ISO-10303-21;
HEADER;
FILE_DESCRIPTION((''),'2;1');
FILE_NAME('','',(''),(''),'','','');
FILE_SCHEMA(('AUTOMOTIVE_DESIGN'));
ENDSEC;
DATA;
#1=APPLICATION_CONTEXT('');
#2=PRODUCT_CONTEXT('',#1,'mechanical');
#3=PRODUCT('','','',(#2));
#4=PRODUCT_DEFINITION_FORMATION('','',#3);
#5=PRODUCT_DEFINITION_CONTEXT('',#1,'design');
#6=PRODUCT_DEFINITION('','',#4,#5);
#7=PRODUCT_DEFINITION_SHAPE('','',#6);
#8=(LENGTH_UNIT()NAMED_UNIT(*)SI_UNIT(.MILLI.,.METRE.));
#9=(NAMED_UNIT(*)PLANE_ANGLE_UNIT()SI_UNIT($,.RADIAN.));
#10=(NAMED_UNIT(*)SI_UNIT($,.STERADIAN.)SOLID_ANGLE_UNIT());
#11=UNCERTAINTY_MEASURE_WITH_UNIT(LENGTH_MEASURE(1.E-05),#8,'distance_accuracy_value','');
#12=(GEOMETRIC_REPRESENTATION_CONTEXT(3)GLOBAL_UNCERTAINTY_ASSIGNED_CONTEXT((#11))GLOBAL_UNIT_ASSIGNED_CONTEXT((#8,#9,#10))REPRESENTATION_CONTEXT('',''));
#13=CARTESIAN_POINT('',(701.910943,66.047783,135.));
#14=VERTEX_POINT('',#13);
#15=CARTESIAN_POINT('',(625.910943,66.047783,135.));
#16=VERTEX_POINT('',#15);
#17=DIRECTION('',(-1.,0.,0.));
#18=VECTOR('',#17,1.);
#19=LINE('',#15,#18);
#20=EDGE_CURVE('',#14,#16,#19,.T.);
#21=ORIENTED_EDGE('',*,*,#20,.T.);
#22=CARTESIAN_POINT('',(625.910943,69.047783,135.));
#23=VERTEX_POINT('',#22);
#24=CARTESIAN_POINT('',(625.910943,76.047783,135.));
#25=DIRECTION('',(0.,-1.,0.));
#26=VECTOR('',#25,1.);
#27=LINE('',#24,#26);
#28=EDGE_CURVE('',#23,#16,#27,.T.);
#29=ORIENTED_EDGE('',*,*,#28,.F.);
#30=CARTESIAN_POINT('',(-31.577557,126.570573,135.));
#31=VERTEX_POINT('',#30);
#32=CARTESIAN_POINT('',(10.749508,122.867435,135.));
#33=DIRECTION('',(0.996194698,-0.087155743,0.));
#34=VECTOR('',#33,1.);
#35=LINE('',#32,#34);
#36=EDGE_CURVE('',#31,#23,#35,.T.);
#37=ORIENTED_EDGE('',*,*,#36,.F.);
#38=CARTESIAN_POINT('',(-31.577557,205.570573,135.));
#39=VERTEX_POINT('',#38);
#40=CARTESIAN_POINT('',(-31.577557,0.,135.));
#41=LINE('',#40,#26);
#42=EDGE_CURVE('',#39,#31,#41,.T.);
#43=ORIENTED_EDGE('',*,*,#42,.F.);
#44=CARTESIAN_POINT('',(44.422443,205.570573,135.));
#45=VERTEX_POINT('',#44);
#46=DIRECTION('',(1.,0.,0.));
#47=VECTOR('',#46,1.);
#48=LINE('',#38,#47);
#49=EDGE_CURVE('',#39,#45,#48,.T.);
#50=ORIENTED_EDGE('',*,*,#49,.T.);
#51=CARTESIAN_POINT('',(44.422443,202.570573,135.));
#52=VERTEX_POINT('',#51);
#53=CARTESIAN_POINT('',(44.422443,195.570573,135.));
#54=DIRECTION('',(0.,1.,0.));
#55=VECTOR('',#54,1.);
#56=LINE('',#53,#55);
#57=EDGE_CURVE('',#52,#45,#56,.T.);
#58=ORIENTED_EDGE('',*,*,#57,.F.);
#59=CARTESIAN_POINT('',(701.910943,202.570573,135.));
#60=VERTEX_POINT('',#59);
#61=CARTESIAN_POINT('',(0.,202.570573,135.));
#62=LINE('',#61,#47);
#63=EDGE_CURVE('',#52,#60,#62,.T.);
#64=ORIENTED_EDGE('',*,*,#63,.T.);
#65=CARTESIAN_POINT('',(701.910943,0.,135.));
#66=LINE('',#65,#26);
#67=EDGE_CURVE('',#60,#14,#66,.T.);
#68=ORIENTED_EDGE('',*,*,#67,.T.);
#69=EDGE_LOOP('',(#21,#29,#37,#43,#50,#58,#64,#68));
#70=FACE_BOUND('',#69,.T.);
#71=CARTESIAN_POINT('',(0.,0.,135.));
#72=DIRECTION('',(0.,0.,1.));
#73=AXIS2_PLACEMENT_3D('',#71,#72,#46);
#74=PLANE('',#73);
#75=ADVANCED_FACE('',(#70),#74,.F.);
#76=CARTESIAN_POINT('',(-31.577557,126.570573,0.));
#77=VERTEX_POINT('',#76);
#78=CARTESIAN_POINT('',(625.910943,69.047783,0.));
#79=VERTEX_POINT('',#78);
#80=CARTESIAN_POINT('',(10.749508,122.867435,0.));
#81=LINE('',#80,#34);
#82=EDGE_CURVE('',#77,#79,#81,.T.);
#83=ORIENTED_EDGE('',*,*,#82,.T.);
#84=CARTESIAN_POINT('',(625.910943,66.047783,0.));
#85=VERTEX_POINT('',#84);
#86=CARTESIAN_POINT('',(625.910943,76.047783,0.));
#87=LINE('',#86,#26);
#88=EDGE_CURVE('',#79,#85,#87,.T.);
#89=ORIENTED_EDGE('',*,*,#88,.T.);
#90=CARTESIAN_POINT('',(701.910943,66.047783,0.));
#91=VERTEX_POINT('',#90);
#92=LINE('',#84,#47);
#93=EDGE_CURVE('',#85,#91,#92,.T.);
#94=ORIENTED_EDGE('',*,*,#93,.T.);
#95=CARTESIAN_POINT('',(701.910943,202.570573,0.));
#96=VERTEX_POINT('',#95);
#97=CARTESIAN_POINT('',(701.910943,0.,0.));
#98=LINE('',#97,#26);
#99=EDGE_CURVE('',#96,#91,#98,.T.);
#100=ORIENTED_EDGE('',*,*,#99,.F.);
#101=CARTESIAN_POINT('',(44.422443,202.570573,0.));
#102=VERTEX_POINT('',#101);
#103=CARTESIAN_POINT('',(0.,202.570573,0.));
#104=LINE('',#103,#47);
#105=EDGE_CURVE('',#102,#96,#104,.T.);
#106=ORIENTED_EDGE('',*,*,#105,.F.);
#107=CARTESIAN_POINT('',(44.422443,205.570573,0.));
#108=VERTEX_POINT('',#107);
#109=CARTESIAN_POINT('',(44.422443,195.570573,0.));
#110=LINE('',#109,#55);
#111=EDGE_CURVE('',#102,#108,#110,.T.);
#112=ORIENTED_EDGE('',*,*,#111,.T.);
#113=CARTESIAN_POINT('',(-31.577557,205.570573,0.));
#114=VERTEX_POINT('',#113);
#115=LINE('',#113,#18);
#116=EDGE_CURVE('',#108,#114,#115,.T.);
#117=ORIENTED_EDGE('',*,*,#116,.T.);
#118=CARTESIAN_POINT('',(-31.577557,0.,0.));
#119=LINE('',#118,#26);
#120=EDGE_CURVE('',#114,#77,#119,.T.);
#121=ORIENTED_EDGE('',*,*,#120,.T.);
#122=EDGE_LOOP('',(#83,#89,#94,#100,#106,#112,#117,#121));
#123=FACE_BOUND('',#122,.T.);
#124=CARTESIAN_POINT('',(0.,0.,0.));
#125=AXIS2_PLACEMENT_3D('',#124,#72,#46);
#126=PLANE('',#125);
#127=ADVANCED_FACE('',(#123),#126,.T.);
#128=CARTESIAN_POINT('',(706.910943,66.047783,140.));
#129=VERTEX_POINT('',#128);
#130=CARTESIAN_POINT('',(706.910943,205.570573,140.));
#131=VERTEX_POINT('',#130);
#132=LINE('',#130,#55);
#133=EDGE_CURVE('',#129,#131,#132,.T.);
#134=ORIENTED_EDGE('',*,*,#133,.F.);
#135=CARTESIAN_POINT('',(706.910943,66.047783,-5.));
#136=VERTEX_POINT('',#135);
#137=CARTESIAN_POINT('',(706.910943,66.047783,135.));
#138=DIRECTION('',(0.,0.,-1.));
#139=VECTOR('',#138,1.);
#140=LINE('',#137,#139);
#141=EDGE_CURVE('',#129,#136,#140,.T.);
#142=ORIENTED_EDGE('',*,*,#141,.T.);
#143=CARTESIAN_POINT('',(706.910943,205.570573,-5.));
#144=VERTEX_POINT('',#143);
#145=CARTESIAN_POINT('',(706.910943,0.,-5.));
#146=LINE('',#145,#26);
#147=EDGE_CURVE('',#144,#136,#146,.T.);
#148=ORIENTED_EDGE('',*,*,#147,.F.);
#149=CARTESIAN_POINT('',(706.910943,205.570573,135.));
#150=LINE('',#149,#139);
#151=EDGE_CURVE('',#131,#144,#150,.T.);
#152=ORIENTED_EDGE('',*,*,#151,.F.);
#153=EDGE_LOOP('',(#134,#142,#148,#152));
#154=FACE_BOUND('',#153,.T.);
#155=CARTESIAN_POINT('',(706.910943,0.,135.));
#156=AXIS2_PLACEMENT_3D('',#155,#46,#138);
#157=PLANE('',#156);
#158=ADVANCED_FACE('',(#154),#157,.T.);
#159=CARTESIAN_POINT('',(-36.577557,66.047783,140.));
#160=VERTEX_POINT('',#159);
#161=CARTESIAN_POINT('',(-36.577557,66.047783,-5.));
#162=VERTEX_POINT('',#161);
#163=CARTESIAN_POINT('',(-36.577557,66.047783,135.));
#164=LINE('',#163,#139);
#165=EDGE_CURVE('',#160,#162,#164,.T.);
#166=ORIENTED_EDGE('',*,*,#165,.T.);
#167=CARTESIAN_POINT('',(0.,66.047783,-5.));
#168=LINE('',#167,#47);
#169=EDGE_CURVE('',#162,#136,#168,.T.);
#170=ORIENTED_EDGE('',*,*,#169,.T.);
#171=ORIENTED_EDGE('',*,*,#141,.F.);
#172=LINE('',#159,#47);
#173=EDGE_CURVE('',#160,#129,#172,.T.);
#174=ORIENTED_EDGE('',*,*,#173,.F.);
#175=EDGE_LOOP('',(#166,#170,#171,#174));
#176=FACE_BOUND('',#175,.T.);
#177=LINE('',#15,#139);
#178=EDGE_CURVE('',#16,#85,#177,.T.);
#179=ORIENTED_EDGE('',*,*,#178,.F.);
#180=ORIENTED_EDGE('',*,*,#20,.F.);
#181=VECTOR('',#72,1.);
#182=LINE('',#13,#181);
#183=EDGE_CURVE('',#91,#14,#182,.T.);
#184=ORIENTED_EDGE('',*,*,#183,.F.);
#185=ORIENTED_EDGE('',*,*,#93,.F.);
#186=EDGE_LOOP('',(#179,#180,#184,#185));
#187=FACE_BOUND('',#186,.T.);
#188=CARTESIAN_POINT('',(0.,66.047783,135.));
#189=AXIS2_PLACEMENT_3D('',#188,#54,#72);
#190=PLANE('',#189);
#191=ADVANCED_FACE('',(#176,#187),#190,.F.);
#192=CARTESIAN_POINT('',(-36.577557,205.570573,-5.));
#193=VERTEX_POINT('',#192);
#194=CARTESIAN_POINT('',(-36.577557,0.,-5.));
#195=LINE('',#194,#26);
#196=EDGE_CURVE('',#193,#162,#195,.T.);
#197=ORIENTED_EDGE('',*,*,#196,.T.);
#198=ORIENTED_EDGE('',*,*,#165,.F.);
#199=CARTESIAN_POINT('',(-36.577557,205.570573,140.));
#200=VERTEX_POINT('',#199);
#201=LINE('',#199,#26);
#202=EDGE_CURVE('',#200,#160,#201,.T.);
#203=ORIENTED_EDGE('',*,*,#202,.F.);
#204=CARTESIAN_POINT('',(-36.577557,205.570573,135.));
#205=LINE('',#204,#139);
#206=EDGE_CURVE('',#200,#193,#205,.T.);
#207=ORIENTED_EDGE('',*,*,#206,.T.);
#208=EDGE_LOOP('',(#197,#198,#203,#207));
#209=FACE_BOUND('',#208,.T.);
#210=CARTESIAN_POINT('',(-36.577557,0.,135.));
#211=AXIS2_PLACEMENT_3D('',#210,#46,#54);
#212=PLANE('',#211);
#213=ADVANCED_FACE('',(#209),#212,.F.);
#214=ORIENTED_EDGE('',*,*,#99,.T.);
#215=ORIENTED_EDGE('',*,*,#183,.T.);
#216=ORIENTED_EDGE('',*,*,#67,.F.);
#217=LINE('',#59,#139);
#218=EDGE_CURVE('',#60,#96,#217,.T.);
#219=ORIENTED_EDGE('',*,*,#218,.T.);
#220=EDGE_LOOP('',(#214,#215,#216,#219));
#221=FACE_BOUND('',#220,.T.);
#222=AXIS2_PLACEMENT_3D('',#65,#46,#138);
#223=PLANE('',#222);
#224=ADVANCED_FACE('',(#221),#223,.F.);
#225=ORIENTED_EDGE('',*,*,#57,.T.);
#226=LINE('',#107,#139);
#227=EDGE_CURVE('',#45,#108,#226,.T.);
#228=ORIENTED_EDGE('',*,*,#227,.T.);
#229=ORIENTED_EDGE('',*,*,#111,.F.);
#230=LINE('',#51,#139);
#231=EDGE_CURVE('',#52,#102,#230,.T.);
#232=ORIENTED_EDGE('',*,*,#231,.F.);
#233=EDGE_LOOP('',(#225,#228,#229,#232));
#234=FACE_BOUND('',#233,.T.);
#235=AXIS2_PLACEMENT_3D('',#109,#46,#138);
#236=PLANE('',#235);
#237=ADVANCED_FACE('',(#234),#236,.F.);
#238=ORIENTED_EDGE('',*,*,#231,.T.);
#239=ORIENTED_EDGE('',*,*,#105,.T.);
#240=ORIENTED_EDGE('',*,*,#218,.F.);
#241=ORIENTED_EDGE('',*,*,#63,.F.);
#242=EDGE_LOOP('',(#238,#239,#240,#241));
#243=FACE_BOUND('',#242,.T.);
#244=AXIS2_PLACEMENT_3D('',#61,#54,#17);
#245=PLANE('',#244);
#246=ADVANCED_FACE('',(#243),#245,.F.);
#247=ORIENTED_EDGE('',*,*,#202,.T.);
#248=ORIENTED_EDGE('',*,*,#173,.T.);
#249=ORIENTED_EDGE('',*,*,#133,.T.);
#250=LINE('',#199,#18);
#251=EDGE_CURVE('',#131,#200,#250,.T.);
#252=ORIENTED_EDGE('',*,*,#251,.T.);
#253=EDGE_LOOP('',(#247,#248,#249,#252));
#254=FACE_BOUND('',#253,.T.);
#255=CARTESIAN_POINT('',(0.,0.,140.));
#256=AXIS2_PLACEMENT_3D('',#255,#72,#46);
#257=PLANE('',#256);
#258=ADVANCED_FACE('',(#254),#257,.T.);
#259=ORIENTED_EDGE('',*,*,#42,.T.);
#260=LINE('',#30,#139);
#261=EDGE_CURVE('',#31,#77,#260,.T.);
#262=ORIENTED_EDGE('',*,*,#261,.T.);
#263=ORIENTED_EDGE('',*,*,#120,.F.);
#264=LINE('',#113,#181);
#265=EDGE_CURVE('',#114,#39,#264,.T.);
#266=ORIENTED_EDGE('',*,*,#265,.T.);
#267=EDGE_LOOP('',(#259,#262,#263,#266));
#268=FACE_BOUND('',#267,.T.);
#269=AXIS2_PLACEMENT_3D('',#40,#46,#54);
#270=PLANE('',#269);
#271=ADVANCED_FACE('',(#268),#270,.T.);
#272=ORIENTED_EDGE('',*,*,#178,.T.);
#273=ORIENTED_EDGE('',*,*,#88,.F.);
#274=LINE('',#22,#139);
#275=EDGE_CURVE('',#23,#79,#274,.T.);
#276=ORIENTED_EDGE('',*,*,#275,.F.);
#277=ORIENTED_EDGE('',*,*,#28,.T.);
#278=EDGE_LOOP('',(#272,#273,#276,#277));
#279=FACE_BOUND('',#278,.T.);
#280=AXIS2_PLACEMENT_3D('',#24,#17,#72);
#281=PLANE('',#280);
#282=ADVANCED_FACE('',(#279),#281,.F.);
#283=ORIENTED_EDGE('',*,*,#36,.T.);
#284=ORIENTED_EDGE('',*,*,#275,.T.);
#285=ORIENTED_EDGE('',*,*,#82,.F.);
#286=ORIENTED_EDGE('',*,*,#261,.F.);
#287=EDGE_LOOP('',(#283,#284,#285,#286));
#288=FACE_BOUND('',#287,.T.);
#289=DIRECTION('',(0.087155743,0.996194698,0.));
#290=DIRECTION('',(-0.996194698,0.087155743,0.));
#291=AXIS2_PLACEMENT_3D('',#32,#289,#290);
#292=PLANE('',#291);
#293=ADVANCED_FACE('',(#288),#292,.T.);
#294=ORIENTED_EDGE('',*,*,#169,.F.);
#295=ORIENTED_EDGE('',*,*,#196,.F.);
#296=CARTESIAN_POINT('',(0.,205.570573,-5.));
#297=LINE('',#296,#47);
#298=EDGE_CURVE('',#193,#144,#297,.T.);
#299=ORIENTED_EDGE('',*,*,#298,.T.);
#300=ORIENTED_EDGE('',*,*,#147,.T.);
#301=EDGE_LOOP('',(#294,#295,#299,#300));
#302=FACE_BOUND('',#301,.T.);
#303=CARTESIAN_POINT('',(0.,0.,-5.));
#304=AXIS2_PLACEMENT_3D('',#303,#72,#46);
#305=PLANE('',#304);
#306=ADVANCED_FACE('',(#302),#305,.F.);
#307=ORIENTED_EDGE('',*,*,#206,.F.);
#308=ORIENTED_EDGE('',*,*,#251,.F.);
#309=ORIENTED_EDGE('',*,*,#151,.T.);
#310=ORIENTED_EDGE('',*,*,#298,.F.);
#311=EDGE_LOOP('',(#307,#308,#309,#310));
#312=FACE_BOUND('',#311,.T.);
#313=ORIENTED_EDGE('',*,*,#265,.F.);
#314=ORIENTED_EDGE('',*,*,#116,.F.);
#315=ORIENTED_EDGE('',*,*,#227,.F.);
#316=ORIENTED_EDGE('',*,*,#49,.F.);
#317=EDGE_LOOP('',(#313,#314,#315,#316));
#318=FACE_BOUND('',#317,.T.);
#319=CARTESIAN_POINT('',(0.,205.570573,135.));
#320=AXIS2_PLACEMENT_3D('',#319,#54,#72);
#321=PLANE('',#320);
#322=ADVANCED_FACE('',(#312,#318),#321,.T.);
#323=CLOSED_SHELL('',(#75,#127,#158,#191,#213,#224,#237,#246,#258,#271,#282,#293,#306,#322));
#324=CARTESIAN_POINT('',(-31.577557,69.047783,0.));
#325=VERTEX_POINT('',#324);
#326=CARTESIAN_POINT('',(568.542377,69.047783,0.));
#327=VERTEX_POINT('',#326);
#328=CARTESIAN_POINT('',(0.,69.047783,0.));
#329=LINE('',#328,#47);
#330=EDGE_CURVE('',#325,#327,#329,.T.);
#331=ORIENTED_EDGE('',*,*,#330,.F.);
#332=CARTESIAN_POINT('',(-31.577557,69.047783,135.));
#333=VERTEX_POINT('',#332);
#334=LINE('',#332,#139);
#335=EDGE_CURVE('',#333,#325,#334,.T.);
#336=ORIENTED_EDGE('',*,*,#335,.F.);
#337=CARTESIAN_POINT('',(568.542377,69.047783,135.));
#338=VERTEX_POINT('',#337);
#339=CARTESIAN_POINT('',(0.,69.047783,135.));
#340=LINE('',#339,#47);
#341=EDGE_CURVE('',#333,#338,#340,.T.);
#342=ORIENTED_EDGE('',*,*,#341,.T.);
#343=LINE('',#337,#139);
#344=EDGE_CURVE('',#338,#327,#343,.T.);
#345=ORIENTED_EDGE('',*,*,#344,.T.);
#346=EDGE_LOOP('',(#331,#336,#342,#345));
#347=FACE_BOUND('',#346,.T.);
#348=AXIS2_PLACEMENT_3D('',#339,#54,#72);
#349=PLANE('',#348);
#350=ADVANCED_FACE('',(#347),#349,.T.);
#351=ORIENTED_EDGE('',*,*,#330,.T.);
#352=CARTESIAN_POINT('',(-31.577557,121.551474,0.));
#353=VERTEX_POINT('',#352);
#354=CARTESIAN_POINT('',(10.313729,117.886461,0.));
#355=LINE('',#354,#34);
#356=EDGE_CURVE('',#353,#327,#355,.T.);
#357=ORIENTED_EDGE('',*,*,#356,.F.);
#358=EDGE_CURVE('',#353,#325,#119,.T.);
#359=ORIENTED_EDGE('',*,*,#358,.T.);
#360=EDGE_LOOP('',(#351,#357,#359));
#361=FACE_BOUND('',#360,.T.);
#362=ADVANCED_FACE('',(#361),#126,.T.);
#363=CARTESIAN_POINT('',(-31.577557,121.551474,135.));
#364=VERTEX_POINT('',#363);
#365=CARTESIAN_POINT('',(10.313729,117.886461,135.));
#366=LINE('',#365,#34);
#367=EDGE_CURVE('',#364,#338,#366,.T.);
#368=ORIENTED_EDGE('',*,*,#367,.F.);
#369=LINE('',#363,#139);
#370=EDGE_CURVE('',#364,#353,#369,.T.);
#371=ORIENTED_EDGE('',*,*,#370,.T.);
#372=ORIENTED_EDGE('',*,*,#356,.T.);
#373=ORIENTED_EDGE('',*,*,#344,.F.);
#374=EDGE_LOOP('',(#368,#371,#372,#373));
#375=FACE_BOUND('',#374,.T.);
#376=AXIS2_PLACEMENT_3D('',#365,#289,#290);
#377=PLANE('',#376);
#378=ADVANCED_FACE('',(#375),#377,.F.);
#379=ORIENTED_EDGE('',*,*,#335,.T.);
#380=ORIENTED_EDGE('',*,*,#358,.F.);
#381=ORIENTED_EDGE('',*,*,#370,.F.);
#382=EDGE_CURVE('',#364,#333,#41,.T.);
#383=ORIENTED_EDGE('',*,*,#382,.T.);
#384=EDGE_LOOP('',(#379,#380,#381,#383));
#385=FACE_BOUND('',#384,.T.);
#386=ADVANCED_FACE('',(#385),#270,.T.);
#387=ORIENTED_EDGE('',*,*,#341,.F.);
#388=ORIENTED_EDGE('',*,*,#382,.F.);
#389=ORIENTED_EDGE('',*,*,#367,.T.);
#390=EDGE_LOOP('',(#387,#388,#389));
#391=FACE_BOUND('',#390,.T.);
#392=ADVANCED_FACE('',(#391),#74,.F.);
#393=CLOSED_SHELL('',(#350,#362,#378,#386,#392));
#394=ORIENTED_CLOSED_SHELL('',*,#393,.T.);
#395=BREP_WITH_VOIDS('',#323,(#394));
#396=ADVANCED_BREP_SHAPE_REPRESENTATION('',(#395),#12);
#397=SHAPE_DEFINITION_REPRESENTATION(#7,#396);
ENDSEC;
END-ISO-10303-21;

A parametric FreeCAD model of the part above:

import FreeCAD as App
import Part
import Sketcher

V = App.Vector
Q = App.Units.Quantity


def add_polygon(sketch, points):
    """Adds a closed chain of lines whose ends are joined by coincident constraints."""
    first, n = sketch.GeometryCount, len(points)
    for a, b in zip(points, points[1:] + points[:1]):
        sketch.addGeometry(Part.LineSegment(App.Vector(*a, 0), App.Vector(*b, 0)), False)
    for i in range(n):
        sketch.addConstraint(Sketcher.Constraint("Coincident", first + i, 2, first + (i + 1) % n, 1))

doc = App.newDocument("Part")
body = doc.addObject("PartDesign::Body", "Body")

# Sketch on XY plane
sketch1 = body.newObject("Sketcher::SketchObject", "Sketch")
sketch1.AttachmentSupport = (doc.getObject("XY_Plane"), [""])
sketch1.MapMode = "FlatFace"
add_polygon(sketch1, [(-37, 206), (-37, 66), (707, 66), (707, 206)])  # lines 0-3
add_polygon(sketch1, [(569, 69), (-32, 69), (-32, 122)])  # lines 4-6
add_polygon(sketch1, [(702, 69), (626, 69), (-32, 127), (-32, 203), (702, 203)])  # lines 7-11
sketch1.addConstraint([
    Sketcher.Constraint("Vertical", 0),
    Sketcher.Constraint("Horizontal", 1),
    Sketcher.Constraint("Vertical", 2),
    Sketcher.Constraint("Horizontal", 3),
    Sketcher.Constraint("Horizontal", 4),
    Sketcher.Constraint("Vertical", 5),
    Sketcher.Constraint("Horizontal", 7),
    Sketcher.Constraint("Vertical", 9),
    Sketcher.Constraint("Horizontal", 10),
    Sketcher.Constraint("Vertical", 11),
    Sketcher.Constraint("Parallel", 6, 8),
    Sketcher.Constraint("Horizontal", 6, 2, 7, 2),
    Sketcher.Constraint("Vertical", 5, 2, 8, 2),
    Sketcher.Constraint("Equal", 7, 9),
    Sketcher.Constraint("DistanceX", 7, 2, 7, 1, Q("76 mm")),
    Sketcher.Constraint("Angle", 6, Q("-5 deg")),
    Sketcher.Constraint("Distance", 8, Q("660 mm")),
    Sketcher.Constraint("DistanceX", 0, 2, 4, 2, Q("5 mm")),
    Sketcher.Constraint("DistanceY", 0, 2, 4, 2, Q("3 mm")),
    Sketcher.Constraint("DistanceX", 7, 2, 1, 2, Q("81 mm")),
    Sketcher.Constraint("DistanceY", 8, 2, 3, 2, Q("79 mm")),
    Sketcher.Constraint("DistanceY", 5, 1, 5, 2, Q("52.503691 mm")),
    Sketcher.Constraint("DistanceX", 0, 2, -1, 1, Q("36.577557 mm")),
    Sketcher.Constraint("DistanceY", -1, 1, 0, 2, Q("66.047783 mm")),
])
pad1 = body.newObject("PartDesign::Pad", "Pad")
pad1.Profile = sketch1
pad1.Length = 135

# Sketch on XY plane
sketch2 = body.newObject("Sketcher::SketchObject", "Sketch001")
sketch2.AttachmentSupport = (doc.getObject("XY_Plane"), [""])
sketch2.MapMode = "FlatFace"
add_polygon(sketch2, [(-37, 206), (-37, 66), (707, 66), (707, 206)])  # lines 0-3
sketch2.addConstraint([
    Sketcher.Constraint("Vertical", 0),
    Sketcher.Constraint("Horizontal", 1),
    Sketcher.Constraint("Vertical", 2),
    Sketcher.Constraint("Horizontal", 3),
    Sketcher.Constraint("DistanceX", 1, 1, 1, 2, Q("743.488501 mm")),
    Sketcher.Constraint("DistanceY", 0, 2, 0, 1, Q("139.52279 mm")),
    Sketcher.Constraint("DistanceX", 0, 2, -1, 1, Q("36.577557 mm")),
    Sketcher.Constraint("DistanceY", -1, 1, 0, 2, Q("66.047783 mm")),
])
pad2 = body.newObject("PartDesign::Pad", "Pad001")
pad2.Profile = sketch2
pad2.Length = 5
pad2.Reversed = True

# Sketch on XY plane
sketch3 = body.newObject("Sketcher::SketchObject", "Sketch002")
sketch3.AttachmentSupport = (doc.getObject("XY_Plane"), [""])
sketch3.MapMode = "FlatFace"
sketch3.AttachmentOffset = App.Placement(V(0, 0, 135), App.Rotation())
add_polygon(sketch3, [(-37, 206), (-37, 66), (707, 66), (707, 206)])  # lines 0-3
sketch3.addConstraint([
    Sketcher.Constraint("Vertical", 0),
    Sketcher.Constraint("Horizontal", 1),
    Sketcher.Constraint("Vertical", 2),
    Sketcher.Constraint("Horizontal", 3),
    Sketcher.Constraint("DistanceX", 1, 1, 1, 2, Q("743.488501 mm")),
    Sketcher.Constraint("DistanceY", 0, 2, 0, 1, Q("139.52279 mm")),
    Sketcher.Constraint("DistanceX", 0, 2, -1, 1, Q("36.577557 mm")),
    Sketcher.Constraint("DistanceY", -1, 1, 0, 2, Q("66.047783 mm")),
])
pad3 = body.newObject("PartDesign::Pad", "Pad002")
pad3.Profile = sketch3
pad3.Length = 5

# Sketch on XZ plane
sketch4 = body.newObject("Sketcher::SketchObject", "Sketch003")
sketch4.AttachmentSupport = (doc.getObject("XZ_Plane"), [""])
sketch4.MapMode = "FlatFace"
sketch4.AttachmentOffset = App.Placement(V(0, 0, -205.570573), App.Rotation())
add_polygon(sketch4, [(-32, 0), (-32, 135), (44, 135), (44, 0)])  # lines 0-3
sketch4.addConstraint([
    Sketcher.Constraint("Vertical", 0),
    Sketcher.Constraint("Horizontal", 1),
    Sketcher.Constraint("Vertical", 2),
    Sketcher.Constraint("Horizontal", 3),
    Sketcher.Constraint("PointOnObject", 2, 2, -1),
    Sketcher.Constraint("DistanceX", 1, 1, 1, 2, Q("76 mm")),
    Sketcher.Constraint("DistanceY", 0, 1, 0, 2, Q("135 mm")),
    Sketcher.Constraint("DistanceX", 0, 2, -1, 1, Q("31.577557 mm")),
])
pocket1 = body.newObject("PartDesign::Pocket", "Pocket")
pocket1.Profile = sketch4
pocket1.Length = 10
pocket1.Reversed = True

# Sketch on XZ plane
sketch5 = body.newObject("Sketcher::SketchObject", "Sketch004")
sketch5.AttachmentSupport = (doc.getObject("XZ_Plane"), [""])
sketch5.MapMode = "FlatFace"
sketch5.AttachmentOffset = App.Placement(V(0, 0, -66.047783), App.Rotation())
add_polygon(sketch5, [(626, 135), (626, 0), (702, 0), (702, 135)])  # lines 0-3
sketch5.addConstraint([
    Sketcher.Constraint("Vertical", 0),
    Sketcher.Constraint("Horizontal", 1),
    Sketcher.Constraint("Vertical", 2),
    Sketcher.Constraint("Horizontal", 3),
    Sketcher.Constraint("PointOnObject", 0, 2, -1),
    Sketcher.Constraint("DistanceX", 1, 1, 1, 2, Q("76 mm")),
    Sketcher.Constraint("DistanceY", 0, 2, 0, 1, Q("135 mm")),
    Sketcher.Constraint("DistanceX", -1, 1, 0, 2, Q("625.910943 mm")),
])
pocket2 = body.newObject("PartDesign::Pocket", "Pocket001")
pocket2.Profile = sketch5
pocket2.Length = 10

doc.recompute()
